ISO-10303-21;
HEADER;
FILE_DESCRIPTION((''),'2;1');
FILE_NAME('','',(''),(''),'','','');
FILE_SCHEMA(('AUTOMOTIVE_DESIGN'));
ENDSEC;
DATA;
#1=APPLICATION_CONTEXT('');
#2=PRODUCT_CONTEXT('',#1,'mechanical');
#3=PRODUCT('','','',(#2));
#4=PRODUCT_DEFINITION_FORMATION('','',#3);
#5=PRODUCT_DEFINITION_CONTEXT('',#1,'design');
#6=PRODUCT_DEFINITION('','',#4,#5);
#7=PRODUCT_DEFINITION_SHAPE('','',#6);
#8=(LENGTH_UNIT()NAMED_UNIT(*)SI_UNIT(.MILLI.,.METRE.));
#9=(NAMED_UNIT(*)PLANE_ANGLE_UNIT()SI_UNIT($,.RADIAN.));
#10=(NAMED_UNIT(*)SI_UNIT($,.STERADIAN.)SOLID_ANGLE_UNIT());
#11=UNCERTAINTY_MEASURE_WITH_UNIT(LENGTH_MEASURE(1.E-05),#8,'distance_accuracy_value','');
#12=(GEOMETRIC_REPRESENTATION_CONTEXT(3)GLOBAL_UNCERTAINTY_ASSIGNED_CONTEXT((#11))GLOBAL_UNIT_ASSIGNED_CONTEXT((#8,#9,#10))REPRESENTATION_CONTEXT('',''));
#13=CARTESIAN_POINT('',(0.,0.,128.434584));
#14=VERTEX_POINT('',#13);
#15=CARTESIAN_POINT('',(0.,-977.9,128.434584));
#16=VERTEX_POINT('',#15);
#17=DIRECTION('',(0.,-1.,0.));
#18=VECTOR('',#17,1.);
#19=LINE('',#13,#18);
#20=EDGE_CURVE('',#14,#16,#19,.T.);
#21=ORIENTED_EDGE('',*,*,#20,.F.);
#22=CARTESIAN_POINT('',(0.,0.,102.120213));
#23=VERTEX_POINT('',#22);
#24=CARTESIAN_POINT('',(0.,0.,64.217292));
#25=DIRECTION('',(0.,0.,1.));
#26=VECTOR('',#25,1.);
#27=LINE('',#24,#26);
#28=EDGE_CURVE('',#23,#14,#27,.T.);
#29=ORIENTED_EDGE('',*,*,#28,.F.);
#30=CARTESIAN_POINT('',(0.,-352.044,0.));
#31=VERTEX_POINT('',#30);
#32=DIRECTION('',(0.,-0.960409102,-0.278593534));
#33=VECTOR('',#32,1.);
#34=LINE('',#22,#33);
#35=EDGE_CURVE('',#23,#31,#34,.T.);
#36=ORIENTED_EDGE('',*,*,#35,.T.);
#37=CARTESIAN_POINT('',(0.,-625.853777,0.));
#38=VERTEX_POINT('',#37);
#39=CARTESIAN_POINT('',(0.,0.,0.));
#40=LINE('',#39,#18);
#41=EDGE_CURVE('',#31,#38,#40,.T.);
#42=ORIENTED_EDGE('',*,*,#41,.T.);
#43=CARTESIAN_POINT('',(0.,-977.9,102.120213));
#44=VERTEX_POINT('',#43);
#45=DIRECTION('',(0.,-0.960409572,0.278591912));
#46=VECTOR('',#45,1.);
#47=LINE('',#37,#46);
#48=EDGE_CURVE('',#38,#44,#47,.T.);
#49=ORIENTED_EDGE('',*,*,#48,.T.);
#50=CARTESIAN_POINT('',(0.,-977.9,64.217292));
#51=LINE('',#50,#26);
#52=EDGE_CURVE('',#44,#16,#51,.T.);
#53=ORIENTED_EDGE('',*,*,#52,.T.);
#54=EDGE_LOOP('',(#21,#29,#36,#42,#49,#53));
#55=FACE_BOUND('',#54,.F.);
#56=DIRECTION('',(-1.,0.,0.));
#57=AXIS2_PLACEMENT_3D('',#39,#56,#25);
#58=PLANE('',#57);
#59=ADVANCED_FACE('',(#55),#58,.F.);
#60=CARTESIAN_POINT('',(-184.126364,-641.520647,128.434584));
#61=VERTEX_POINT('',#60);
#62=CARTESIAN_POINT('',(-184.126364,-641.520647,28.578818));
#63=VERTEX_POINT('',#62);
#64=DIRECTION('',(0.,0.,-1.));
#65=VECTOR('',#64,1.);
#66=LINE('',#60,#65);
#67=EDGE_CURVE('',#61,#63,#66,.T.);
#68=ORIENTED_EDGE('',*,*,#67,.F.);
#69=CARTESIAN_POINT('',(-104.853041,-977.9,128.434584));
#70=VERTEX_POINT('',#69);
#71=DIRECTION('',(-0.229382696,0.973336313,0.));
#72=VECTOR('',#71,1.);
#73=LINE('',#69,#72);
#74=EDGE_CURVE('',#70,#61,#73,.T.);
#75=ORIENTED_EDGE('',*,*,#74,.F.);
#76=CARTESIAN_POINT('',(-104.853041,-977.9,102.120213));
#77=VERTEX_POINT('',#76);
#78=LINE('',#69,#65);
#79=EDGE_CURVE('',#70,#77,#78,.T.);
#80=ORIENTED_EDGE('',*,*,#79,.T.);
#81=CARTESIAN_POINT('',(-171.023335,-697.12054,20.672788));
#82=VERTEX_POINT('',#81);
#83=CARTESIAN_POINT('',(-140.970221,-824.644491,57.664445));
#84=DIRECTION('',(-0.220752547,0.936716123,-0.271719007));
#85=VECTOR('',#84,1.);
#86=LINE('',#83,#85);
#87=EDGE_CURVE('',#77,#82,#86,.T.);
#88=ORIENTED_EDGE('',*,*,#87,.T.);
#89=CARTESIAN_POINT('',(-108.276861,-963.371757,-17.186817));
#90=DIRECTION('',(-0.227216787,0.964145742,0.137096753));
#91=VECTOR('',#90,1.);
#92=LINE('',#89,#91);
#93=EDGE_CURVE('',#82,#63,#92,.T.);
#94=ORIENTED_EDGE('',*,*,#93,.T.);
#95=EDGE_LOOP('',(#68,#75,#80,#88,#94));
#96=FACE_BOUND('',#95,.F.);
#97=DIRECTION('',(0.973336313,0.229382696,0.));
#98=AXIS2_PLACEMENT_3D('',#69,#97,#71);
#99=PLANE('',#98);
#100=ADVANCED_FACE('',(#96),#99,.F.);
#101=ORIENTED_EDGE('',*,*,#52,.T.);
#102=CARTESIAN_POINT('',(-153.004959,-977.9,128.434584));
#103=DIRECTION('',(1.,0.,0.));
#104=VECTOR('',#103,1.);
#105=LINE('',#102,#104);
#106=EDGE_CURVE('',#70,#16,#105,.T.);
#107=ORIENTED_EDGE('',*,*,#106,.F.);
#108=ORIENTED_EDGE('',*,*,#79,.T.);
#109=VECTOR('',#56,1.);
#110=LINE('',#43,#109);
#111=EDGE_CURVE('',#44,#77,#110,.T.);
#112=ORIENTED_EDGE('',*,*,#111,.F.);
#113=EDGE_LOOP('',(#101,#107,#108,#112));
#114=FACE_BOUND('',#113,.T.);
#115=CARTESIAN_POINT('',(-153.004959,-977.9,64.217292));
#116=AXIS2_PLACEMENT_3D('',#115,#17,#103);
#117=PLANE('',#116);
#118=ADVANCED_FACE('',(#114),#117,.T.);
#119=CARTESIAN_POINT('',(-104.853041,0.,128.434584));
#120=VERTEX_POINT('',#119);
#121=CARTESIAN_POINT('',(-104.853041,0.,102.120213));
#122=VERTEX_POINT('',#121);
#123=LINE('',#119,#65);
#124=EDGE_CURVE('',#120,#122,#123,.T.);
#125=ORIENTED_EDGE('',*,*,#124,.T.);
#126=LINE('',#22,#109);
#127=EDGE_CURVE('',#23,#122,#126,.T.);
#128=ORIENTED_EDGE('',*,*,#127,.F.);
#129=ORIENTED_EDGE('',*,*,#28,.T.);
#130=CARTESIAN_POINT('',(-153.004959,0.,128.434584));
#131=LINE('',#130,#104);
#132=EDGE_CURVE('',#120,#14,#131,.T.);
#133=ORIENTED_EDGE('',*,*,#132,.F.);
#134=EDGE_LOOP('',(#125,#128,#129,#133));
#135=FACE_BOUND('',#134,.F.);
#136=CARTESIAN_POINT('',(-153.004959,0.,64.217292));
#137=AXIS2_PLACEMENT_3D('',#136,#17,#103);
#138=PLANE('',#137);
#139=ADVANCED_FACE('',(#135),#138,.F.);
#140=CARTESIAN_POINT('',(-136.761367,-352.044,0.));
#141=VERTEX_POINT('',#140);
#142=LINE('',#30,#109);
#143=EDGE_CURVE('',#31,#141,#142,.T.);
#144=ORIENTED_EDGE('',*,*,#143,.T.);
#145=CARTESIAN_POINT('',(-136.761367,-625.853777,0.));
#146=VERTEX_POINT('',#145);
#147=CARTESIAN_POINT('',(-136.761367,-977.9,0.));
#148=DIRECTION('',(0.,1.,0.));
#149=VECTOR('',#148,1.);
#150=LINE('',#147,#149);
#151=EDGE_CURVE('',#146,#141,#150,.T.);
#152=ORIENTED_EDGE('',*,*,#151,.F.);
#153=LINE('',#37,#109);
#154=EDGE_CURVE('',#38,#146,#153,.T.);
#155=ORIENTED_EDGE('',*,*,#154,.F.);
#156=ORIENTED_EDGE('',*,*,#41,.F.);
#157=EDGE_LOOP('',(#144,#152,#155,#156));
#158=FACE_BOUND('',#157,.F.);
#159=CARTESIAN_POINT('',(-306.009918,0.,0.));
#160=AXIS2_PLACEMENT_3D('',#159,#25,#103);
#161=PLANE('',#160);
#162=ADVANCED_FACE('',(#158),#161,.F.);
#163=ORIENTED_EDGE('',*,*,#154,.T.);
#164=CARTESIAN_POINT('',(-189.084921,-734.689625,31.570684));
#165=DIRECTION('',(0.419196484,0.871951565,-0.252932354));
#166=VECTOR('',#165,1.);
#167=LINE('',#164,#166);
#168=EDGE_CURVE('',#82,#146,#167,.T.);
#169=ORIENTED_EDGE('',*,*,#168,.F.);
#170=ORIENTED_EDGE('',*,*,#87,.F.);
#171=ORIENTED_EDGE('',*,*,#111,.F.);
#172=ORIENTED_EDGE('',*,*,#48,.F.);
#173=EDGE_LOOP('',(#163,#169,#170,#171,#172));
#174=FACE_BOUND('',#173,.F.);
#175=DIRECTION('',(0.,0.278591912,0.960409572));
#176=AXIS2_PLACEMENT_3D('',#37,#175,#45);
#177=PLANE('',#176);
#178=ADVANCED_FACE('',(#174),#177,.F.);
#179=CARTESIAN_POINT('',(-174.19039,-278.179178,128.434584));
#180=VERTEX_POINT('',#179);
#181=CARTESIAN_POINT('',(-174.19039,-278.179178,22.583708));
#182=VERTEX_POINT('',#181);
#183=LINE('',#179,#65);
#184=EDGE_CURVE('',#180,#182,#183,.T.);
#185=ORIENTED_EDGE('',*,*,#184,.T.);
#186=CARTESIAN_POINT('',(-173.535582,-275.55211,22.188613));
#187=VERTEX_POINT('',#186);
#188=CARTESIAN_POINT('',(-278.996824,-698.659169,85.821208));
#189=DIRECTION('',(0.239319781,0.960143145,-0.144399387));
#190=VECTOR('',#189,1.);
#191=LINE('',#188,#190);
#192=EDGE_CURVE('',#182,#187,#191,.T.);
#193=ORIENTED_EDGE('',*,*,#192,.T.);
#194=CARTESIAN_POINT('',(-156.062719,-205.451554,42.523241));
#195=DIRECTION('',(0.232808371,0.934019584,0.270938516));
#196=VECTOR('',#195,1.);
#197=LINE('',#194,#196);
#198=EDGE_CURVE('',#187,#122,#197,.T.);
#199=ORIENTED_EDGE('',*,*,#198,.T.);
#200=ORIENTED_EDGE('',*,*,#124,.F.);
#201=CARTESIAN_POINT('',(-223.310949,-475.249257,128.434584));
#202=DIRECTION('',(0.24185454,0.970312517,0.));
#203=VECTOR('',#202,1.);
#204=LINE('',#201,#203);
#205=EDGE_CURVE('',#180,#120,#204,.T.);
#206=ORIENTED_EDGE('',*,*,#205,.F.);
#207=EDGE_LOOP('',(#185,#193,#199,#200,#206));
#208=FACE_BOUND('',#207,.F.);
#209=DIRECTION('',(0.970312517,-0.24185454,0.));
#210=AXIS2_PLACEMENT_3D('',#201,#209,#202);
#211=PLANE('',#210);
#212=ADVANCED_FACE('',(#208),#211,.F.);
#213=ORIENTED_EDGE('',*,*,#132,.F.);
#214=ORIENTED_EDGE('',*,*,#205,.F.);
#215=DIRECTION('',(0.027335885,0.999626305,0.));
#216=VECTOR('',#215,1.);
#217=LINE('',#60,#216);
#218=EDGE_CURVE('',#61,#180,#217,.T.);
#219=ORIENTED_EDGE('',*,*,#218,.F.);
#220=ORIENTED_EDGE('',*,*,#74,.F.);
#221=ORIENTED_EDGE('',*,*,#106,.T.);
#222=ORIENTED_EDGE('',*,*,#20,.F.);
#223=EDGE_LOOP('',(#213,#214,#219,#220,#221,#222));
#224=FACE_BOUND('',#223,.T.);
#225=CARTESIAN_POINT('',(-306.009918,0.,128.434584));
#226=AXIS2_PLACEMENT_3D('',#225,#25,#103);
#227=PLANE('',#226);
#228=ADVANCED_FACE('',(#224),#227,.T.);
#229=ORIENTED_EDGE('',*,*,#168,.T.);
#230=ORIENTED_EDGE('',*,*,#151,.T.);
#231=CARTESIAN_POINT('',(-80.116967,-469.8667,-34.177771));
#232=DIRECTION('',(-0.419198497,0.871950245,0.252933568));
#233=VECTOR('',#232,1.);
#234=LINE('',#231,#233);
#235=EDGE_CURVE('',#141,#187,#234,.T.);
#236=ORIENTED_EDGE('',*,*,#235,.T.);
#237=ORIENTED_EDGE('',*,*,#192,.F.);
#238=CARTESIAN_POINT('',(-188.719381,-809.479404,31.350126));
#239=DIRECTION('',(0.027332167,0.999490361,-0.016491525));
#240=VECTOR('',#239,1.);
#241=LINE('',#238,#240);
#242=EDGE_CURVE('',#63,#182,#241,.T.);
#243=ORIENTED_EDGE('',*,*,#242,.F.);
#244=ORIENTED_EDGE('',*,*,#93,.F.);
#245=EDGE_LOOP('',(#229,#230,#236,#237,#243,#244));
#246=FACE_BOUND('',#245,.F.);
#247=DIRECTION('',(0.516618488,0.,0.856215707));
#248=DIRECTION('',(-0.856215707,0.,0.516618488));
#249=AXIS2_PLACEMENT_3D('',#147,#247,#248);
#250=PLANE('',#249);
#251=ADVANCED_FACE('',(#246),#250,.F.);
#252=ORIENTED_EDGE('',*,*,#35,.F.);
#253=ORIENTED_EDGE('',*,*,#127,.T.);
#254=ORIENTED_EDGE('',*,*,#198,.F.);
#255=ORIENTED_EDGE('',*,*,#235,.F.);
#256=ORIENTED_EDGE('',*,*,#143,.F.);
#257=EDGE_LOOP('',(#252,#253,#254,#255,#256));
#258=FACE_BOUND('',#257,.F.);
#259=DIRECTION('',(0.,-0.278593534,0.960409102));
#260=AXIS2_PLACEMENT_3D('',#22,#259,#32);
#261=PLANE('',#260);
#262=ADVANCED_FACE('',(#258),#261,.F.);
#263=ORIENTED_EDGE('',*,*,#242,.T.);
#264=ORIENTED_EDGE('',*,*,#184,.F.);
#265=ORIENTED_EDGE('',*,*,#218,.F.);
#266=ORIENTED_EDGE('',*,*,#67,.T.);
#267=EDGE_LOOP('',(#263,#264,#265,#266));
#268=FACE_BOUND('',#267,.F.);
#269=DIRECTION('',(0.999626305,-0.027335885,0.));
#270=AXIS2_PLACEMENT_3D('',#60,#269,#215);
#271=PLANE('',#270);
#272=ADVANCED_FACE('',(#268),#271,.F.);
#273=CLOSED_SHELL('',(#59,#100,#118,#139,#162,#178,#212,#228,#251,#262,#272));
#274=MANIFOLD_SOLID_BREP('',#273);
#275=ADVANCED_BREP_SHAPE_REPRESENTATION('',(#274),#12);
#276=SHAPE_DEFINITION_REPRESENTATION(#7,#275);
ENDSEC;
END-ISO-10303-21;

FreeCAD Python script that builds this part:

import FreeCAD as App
import Part
import Sketcher
from FreeCAD import Vector
Q = App.Units.Quantity

doc = App.newDocument("Part")
params = doc.addObject("Spreadsheet::Sheet", "Params")
for row, (alias, value) in enumerate([
    ("pad1_length", "38.5 in"),
    ("sketch2_width", "13.86 in"),
    ("pocket1_length", "20 in"),
    ("pocket2_length", "62.1 in"),
    ("pocket3_length", "80 in"),
    ("sketch5_height", "38.5 in"),
    ("pocket4_length", "80 in"),
    ("pocket5_length", "80 in"),
], start=1):
    params.set(f"A{row}", alias)
    params.set(f"B{row}", "=" + value)
    params.setAlias(f"B{row}", alias)

body = doc.addObject("PartDesign::Body", "Body")

sketch1 = body.newObject("Sketcher::SketchObject", "Sketch")
sketch1.AttachmentSupport = (doc.getObject("XZ_Plane"), [""])
sketch1.MapMode = "FlatFace"
sketch1.addGeometry([
    Part.LineSegment(Vector(-306.009918, 128.434584, 0), Vector(-306.009918, 0, 0)),
    Part.LineSegment(Vector(-306.009918, 0, 0), Vector(0, 0, 0)),
    Part.LineSegment(Vector(0, 0, 0), Vector(0, 128.434584, 0)),
    Part.LineSegment(Vector(0, 128.434584, 0), Vector(-306.009918, 128.434584, 0)),
], False)
sketch1.addConstraint([
    Sketcher.Constraint("Coincident", 0, 2, 1, 1),
    Sketcher.Constraint("Coincident", 1, 2, 2, 1),
    Sketcher.Constraint("Coincident", 2, 2, 3, 1),
    Sketcher.Constraint("Coincident", 3, 2, 0, 1),
    Sketcher.Constraint("Vertical", 0),
    Sketcher.Constraint("Horizontal", 1),
    Sketcher.Constraint("Vertical", 2),
    Sketcher.Constraint("Horizontal", 3),
    Sketcher.Constraint("Coincident", 1, 2, -1, 1),
    Sketcher.Constraint("DistanceX", 1, 1, 1, 2, Q("306.009918 mm")),
    Sketcher.Constraint("DistanceY", 0, 2, 0, 1, Q("128.434584 mm")),
])
pad1 = body.newObject("PartDesign::Pad", "Pad")
pad1.Profile = sketch1
pad1.setExpression("Length", "Params.pad1_length")

sketch2 = body.newObject("Sketcher::SketchObject", "Sketch001")
sketch2.AttachmentSupport = (doc.getObject("YZ_Plane"), [""])
sketch2.MapMode = "FlatFace"
sketch2.addGeometry([
    Part.LineSegment(Vector(-625.853777, 0, 0), Vector(-977.9, 102.120213, 0)),
    Part.LineSegment(Vector(-977.9, 102.120213, 0), Vector(-977.9, 0, 0)),
    Part.LineSegment(Vector(-977.9, 0, 0), Vector(-625.853777, 0, 0)),
    Part.LineSegment(Vector(-352.044, 0, 0), Vector(0, 0, 0)),
    Part.LineSegment(Vector(0, 0, 0), Vector(0, 102.120213, 0)),
    Part.LineSegment(Vector(0, 102.120213, 0), Vector(-352.044, 0, 0)),
], False)
sketch2.addConstraint([
    Sketcher.Constraint("Coincident", 0, 2, 1, 1),
    Sketcher.Constraint("Coincident", 1, 2, 2, 1),
    Sketcher.Constraint("Coincident", 2, 2, 0, 1),
    Sketcher.Constraint("Coincident", 3, 2, 4, 1),
    Sketcher.Constraint("Coincident", 4, 2, 5, 1),
    Sketcher.Constraint("Coincident", 5, 2, 3, 1),
    Sketcher.Constraint("Vertical", 1),
    Sketcher.Constraint("Horizontal", 2),
    Sketcher.Constraint("Horizontal", 3),
    Sketcher.Constraint("Vertical", 4),
    Sketcher.Constraint("Coincident", 3, 2, -1, 1),
    Sketcher.Constraint("PointOnObject", 1, 2, -1),
    Sketcher.Constraint("Horizontal", 0, 2, 4, 2),
    Sketcher.Constraint("DistanceX", 3, 1, 3, 2, Q("13.86 in")),
    Sketcher.Constraint("DistanceX", 0, 2, -1, 1, Q("38.5 in")),
    Sketcher.Constraint("DistanceX", 2, 1, 2, 2, Q("352.046223 mm")),
    Sketcher.Constraint("DistanceY", 1, 2, 1, 1, Q("102.120213 mm")),
])
sketch2.setExpression("Constraints[13]", "Params.sketch2_width")
pocket1 = body.newObject("PartDesign::Pocket", "Pocket")
pocket1.Profile = sketch2
pocket1.setExpression("Length", "Params.pocket1_length")

sketch3 = body.newObject("Sketcher::SketchObject", "Sketch002")
sketch3.AttachmentSupport = (doc.getObject("XZ_Plane"), [""])
sketch3.MapMode = "FlatFace"
sketch3.AttachmentOffset = App.Placement(Vector(0, 0, 38.5 * 25.4), App.Rotation())
sketch3.addGeometry([
    Part.LineSegment(Vector(-136.761367, 0, 0), Vector(-306.009918, 102.120213, 0)),
    Part.LineSegment(Vector(-306.009918, 102.120213, 0), Vector(-306.009918, 0, 0)),
    Part.LineSegment(Vector(-306.009918, 0, 0), Vector(-136.761367, 0, 0)),
], False)
sketch3.addConstraint([
    Sketcher.Constraint("Coincident", 0, 2, 1, 1),
    Sketcher.Constraint("Coincident", 1, 2, 2, 1),
    Sketcher.Constraint("Coincident", 2, 2, 0, 1),
    Sketcher.Constraint("Vertical", 1),
    Sketcher.Constraint("Horizontal", 2),
    Sketcher.Constraint("PointOnObject", 1, 2, -1),
    Sketcher.Constraint("DistanceX", 2, 1, 2, 2, Q("169.248551 mm")),
    Sketcher.Constraint("Distance", 0, Q("197.670458 mm")),
    Sketcher.Constraint("DistanceX", 0, 2, -1, 1, Q("306.009918 mm")),
])
pocket2 = body.newObject("PartDesign::Pocket", "Pocket001")
pocket2.Profile = sketch3
pocket2.setExpression("Length", "Params.pocket2_length")

sketch4 = body.newObject("Sketcher::SketchObject", "Sketch003")
sketch4.AttachmentSupport = (doc.getObject("XZ_Plane"), [""])
sketch4.MapMode = "FlatFace"
sketch4.addGeometry([
    Part.LineSegment(Vector(-209.706083, 128.434584, 0), Vector(-209.706083, 102.120213, 0)),
    Part.LineSegment(Vector(-209.706083, 102.120213, 0), Vector(-306.009918, 102.120213, 0)),
    Part.LineSegment(Vector(-306.009918, 102.120213, 0), Vector(-306.009918, 128.434584, 0)),
    Part.LineSegment(Vector(-306.009918, 128.434584, 0), Vector(-209.706083, 128.434584, 0)),
], False)
sketch4.addConstraint([
    Sketcher.Constraint("Coincident", 0, 2, 1, 1),
    Sketcher.Constraint("Coincident", 1, 2, 2, 1),
    Sketcher.Constraint("Coincident", 2, 2, 3, 1),
    Sketcher.Constraint("Coincident", 3, 2, 0, 1),
    Sketcher.Constraint("Vertical", 0),
    Sketcher.Constraint("Horizontal", 1),
    Sketcher.Constraint("Vertical", 2),
    Sketcher.Constraint("Horizontal", 3),
    Sketcher.Constraint("DistanceY", 0, 2, 0, 1, Q("26.31437 mm")),
    Sketcher.Constraint("DistanceX", 1, 2, 1, 1, Q("96.303836 mm")),
    Sketcher.Constraint("DistanceX", 1, 2, -1, 1, Q("306.009918 mm")),
    Sketcher.Constraint("DistanceY", -1, 1, 0, 2, Q("102.120213 mm")),
])
pocket3 = body.newObject("PartDesign::Pocket", "Pocket002")
pocket3.Profile = sketch4
pocket3.setExpression("Length", "Params.pocket3_length")
pocket3.Reversed = True

sketch5 = body.newObject("Sketcher::SketchObject", "Sketch004")
sketch5.AttachmentSupport = (doc.getObject("XY_Plane"), [""])
sketch5.MapMode = "FlatFace"
sketch5.AttachmentOffset = App.Placement(Vector(0, 0, 128.434584), App.Rotation())
sketch5.addGeometry([
    Part.LineSegment(Vector(-223.310949, -475.249257, 0), Vector(-104.853041, 0, 0)),
    Part.LineSegment(Vector(-104.853041, 0, 0), Vector(-310.77373, 0, 0)),
    Part.LineSegment(Vector(-310.77373, 0, 0), Vector(-310.77373, -977.9, 0)),
    Part.LineSegment(Vector(-310.77373, -977.9, 0), Vector(-104.853041, -977.9, 0)),
    Part.LineSegment(Vector(-104.853041, -977.9, 0), Vector(-223.310949, -475.249257, 0)),
], False)
sketch5.addConstraint([
    Sketcher.Constraint("Coincident", 0, 2, 1, 1),
    Sketcher.Constraint("Coincident", 1, 2, 2, 1),
    Sketcher.Constraint("Coincident", 2, 2, 3, 1),
    Sketcher.Constraint("Coincident", 3, 2, 4, 1),
    Sketcher.Constraint("Coincident", 4, 2, 0, 1),
    Sketcher.Constraint("Horizontal", 1),
    Sketcher.Constraint("Vertical", 2),
    Sketcher.Constraint("Horizontal", 3),
    Sketcher.Constraint("PointOnObject", 0, 2, -1),
    Sketcher.Constraint("Vertical", 0, 2, 3, 2),
    Sketcher.Constraint("DistanceY", 2, 2, 2, 1, Q("38.5 in")),
    Sketcher.Constraint("DistanceX", 1, 2, 1, 1, Q("205.920689 mm")),
    Sketcher.Constraint("DistanceX", 0, 2, -1, 1, Q("104.853041 mm")),
    Sketcher.Constraint("DistanceX", 4, 2, -1, 1, Q("223.310949 mm")),
    Sketcher.Constraint("Distance", 0, Q("489.789885 mm")),
])
sketch5.setExpression("Constraints[10]", "Params.sketch5_height")
pocket4 = body.newObject("PartDesign::Pocket", "Pocket003")
pocket4.Profile = sketch5
pocket4.setExpression("Length", "Params.pocket4_length")

sketch6 = body.newObject("Sketcher::SketchObject", "Sketch005")
sketch6.AttachmentSupport = (doc.getObject("XY_Plane"), [""])
sketch6.MapMode = "FlatFace"
sketch6.AttachmentOffset = App.Placement(Vector(0, 0, 128.434584), App.Rotation())
sketch6.addGeometry([
    Part.LineSegment(Vector(-184.126364, -641.520647, 0), Vector(-174.19039, -278.179178, 0)),
    Part.LineSegment(Vector(-174.19039, -278.179178, 0), Vector(-476.838976, -662.85491, 0)),
    Part.LineSegment(Vector(-476.838976, -662.85491, 0), Vector(-184.126364, -641.520647, 0)),
], False)
sketch6.addConstraint([
    Sketcher.Constraint("Coincident", 0, 2, 1, 1),
    Sketcher.Constraint("Coincident", 1, 2, 2, 1),
    Sketcher.Constraint("Coincident", 2, 2, 0, 1),
    Sketcher.Constraint("Distance", 0, Q("363.477298 mm")),
    Sketcher.Constraint("DistanceX", 0, 2, -1, 1, Q("174.19039 mm")),
    Sketcher.Constraint("DistanceY", 0, 2, -1, 1, Q("278.179178 mm")),
    Sketcher.Constraint("DistanceY", 1, 2, -1, 1, Q("662.85491 mm")),
    Sketcher.Constraint("DistanceY", 2, 2, 0, 2, Q("363.341469 mm")),
    Sketcher.Constraint("Distance", 1, Q("489.460504 mm")),
])
pocket5 = body.newObject("PartDesign::Pocket", "Pocket004")
pocket5.Profile = sketch6
pocket5.setExpression("Length", "Params.pocket5_length")

doc.recompute()
